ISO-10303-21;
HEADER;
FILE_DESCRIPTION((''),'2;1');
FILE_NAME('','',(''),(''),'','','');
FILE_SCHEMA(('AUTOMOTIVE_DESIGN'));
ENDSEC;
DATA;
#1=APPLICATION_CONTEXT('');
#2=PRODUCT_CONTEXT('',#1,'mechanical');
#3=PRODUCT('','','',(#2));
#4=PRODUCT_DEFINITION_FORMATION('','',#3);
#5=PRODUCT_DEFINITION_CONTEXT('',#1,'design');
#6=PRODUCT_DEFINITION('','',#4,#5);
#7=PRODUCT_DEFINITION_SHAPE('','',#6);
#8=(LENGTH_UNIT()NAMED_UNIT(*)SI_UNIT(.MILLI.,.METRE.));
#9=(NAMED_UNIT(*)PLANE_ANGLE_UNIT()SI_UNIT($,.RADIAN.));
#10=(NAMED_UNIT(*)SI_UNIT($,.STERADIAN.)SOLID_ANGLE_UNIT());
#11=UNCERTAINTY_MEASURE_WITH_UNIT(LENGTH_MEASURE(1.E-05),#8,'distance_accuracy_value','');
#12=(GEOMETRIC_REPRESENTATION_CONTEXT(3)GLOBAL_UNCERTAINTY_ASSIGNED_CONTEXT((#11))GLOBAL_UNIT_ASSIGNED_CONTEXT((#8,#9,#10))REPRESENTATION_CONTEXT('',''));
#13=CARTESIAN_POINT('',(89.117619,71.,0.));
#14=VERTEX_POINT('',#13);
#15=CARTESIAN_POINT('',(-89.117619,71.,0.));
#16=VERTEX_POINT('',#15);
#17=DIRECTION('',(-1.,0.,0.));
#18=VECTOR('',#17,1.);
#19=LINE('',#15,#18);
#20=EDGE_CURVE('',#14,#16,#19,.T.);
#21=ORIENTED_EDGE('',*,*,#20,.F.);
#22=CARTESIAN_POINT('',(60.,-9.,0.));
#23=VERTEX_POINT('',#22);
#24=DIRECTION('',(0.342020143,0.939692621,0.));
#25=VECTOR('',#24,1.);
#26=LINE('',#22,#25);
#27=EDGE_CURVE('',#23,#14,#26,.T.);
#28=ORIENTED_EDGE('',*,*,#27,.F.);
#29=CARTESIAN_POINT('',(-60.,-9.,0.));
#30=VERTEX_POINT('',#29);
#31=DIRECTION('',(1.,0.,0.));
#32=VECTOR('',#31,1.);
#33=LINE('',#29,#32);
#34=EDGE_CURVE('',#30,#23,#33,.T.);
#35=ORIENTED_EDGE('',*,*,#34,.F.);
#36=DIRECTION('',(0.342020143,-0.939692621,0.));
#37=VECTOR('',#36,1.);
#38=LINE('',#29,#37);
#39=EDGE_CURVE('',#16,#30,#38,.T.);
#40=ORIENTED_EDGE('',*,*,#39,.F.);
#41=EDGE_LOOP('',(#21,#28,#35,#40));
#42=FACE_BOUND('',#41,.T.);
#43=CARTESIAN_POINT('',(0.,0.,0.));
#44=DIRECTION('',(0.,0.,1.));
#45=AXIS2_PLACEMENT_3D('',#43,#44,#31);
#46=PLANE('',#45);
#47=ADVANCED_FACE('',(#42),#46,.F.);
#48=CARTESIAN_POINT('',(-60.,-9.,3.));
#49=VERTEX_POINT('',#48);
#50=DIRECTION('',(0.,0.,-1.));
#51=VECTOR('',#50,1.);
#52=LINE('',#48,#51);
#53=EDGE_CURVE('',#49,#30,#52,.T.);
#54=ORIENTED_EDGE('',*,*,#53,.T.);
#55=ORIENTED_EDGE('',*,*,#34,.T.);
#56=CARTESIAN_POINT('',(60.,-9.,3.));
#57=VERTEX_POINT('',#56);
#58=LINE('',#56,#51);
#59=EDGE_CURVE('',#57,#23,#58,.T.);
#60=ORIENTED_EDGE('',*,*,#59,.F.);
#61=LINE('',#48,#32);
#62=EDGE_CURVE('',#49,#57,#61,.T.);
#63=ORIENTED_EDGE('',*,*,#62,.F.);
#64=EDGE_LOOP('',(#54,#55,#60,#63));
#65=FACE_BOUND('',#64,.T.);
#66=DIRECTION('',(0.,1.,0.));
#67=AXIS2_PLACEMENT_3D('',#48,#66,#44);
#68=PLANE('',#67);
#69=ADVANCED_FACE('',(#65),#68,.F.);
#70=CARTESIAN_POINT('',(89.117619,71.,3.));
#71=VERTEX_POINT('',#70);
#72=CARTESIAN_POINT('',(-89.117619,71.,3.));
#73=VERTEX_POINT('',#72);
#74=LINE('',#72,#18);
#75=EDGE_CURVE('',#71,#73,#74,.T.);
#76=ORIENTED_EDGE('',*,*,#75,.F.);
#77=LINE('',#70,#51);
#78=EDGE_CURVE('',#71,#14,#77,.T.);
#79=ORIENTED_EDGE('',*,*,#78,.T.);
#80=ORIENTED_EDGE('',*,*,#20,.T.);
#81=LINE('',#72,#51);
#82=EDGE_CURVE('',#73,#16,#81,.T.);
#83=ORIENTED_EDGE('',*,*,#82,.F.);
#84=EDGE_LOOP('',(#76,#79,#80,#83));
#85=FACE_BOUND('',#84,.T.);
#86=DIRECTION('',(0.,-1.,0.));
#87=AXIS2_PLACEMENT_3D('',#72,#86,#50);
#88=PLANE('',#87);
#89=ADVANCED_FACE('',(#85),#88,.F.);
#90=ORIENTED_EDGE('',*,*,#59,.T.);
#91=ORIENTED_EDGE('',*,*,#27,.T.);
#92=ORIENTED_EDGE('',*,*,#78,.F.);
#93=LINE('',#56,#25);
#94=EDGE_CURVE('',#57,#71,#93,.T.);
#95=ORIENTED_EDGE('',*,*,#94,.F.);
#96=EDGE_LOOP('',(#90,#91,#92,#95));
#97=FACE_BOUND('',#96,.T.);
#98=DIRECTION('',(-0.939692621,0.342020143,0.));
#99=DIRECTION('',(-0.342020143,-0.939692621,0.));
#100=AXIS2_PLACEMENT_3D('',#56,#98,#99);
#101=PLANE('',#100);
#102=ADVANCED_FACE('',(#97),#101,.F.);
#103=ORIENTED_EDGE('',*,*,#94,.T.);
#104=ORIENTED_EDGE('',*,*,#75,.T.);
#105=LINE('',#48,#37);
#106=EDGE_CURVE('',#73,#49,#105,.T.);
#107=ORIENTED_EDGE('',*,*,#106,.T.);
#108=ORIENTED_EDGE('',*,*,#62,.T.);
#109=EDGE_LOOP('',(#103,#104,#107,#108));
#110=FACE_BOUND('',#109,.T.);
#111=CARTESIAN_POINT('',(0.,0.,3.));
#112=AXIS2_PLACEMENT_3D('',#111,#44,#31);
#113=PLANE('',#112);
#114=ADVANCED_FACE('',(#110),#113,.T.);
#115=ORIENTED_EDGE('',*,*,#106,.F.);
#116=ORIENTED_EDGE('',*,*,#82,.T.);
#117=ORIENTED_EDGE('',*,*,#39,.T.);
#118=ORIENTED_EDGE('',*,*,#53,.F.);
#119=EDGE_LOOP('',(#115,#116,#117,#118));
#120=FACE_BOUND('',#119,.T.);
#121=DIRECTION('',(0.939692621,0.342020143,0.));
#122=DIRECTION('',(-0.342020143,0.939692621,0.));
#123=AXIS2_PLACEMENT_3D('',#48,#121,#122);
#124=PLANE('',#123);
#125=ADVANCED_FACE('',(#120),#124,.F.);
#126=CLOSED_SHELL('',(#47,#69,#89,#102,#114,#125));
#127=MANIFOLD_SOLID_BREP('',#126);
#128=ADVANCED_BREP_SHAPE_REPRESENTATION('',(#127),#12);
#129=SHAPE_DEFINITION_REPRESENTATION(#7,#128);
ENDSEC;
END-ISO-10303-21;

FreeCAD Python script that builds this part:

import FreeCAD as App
import Part
import Sketcher

V = App.Vector
Q = App.Units.Quantity

doc = App.newDocument("Part")
body = doc.addObject("PartDesign::Body", "Body")

# Sketch on XY plane
sketch1 = body.newObject("Sketcher::SketchObject", "Sketch")
sketch1.AttachmentSupport = (doc.getObject("XY_Plane"), [""])
sketch1.MapMode = "FlatFace"
sketch1.addGeometry([
    Part.LineSegment(V(-89, 71, 0), V(-60, -9, 0)),
    Part.LineSegment(V(-60, -9, 0), V(60, -9, 0)),
    Part.LineSegment(V(60, -9, 0), V(89, 71, 0)),
    Part.LineSegment(V(89, 71, 0), V(-89, 71, 0)),
], False)
sketch1.addConstraint([
    Sketcher.Constraint("Coincident", 0, 2, 1, 1),
    Sketcher.Constraint("Coincident", 1, 2, 2, 1),
    Sketcher.Constraint("Coincident", 2, 2, 3, 1),
    Sketcher.Constraint("Coincident", 3, 2, 0, 1),
    Sketcher.Constraint("Horizontal", 1),
    Sketcher.Constraint("Horizontal", 3),
    Sketcher.Constraint("Equal", 0, 2),
    Sketcher.Constraint("DistanceX", 1, 1, 1, 2, 120.0),
    Sketcher.Constraint("Angle", 0, Q("-70 deg")),
    Sketcher.Constraint("DistanceX", 0, 2, -1, 1, 60.0),
    Sketcher.Constraint("DistanceY", 0, 2, -1, 1, 9.0),
    Sketcher.Constraint("DistanceY", -1, 1, 2, 2, 71.0),
])
pad1 = body.newObject("PartDesign::Pad", "Pad")
pad1.Profile = sketch1
pad1.Length = 3

doc.recompute()
